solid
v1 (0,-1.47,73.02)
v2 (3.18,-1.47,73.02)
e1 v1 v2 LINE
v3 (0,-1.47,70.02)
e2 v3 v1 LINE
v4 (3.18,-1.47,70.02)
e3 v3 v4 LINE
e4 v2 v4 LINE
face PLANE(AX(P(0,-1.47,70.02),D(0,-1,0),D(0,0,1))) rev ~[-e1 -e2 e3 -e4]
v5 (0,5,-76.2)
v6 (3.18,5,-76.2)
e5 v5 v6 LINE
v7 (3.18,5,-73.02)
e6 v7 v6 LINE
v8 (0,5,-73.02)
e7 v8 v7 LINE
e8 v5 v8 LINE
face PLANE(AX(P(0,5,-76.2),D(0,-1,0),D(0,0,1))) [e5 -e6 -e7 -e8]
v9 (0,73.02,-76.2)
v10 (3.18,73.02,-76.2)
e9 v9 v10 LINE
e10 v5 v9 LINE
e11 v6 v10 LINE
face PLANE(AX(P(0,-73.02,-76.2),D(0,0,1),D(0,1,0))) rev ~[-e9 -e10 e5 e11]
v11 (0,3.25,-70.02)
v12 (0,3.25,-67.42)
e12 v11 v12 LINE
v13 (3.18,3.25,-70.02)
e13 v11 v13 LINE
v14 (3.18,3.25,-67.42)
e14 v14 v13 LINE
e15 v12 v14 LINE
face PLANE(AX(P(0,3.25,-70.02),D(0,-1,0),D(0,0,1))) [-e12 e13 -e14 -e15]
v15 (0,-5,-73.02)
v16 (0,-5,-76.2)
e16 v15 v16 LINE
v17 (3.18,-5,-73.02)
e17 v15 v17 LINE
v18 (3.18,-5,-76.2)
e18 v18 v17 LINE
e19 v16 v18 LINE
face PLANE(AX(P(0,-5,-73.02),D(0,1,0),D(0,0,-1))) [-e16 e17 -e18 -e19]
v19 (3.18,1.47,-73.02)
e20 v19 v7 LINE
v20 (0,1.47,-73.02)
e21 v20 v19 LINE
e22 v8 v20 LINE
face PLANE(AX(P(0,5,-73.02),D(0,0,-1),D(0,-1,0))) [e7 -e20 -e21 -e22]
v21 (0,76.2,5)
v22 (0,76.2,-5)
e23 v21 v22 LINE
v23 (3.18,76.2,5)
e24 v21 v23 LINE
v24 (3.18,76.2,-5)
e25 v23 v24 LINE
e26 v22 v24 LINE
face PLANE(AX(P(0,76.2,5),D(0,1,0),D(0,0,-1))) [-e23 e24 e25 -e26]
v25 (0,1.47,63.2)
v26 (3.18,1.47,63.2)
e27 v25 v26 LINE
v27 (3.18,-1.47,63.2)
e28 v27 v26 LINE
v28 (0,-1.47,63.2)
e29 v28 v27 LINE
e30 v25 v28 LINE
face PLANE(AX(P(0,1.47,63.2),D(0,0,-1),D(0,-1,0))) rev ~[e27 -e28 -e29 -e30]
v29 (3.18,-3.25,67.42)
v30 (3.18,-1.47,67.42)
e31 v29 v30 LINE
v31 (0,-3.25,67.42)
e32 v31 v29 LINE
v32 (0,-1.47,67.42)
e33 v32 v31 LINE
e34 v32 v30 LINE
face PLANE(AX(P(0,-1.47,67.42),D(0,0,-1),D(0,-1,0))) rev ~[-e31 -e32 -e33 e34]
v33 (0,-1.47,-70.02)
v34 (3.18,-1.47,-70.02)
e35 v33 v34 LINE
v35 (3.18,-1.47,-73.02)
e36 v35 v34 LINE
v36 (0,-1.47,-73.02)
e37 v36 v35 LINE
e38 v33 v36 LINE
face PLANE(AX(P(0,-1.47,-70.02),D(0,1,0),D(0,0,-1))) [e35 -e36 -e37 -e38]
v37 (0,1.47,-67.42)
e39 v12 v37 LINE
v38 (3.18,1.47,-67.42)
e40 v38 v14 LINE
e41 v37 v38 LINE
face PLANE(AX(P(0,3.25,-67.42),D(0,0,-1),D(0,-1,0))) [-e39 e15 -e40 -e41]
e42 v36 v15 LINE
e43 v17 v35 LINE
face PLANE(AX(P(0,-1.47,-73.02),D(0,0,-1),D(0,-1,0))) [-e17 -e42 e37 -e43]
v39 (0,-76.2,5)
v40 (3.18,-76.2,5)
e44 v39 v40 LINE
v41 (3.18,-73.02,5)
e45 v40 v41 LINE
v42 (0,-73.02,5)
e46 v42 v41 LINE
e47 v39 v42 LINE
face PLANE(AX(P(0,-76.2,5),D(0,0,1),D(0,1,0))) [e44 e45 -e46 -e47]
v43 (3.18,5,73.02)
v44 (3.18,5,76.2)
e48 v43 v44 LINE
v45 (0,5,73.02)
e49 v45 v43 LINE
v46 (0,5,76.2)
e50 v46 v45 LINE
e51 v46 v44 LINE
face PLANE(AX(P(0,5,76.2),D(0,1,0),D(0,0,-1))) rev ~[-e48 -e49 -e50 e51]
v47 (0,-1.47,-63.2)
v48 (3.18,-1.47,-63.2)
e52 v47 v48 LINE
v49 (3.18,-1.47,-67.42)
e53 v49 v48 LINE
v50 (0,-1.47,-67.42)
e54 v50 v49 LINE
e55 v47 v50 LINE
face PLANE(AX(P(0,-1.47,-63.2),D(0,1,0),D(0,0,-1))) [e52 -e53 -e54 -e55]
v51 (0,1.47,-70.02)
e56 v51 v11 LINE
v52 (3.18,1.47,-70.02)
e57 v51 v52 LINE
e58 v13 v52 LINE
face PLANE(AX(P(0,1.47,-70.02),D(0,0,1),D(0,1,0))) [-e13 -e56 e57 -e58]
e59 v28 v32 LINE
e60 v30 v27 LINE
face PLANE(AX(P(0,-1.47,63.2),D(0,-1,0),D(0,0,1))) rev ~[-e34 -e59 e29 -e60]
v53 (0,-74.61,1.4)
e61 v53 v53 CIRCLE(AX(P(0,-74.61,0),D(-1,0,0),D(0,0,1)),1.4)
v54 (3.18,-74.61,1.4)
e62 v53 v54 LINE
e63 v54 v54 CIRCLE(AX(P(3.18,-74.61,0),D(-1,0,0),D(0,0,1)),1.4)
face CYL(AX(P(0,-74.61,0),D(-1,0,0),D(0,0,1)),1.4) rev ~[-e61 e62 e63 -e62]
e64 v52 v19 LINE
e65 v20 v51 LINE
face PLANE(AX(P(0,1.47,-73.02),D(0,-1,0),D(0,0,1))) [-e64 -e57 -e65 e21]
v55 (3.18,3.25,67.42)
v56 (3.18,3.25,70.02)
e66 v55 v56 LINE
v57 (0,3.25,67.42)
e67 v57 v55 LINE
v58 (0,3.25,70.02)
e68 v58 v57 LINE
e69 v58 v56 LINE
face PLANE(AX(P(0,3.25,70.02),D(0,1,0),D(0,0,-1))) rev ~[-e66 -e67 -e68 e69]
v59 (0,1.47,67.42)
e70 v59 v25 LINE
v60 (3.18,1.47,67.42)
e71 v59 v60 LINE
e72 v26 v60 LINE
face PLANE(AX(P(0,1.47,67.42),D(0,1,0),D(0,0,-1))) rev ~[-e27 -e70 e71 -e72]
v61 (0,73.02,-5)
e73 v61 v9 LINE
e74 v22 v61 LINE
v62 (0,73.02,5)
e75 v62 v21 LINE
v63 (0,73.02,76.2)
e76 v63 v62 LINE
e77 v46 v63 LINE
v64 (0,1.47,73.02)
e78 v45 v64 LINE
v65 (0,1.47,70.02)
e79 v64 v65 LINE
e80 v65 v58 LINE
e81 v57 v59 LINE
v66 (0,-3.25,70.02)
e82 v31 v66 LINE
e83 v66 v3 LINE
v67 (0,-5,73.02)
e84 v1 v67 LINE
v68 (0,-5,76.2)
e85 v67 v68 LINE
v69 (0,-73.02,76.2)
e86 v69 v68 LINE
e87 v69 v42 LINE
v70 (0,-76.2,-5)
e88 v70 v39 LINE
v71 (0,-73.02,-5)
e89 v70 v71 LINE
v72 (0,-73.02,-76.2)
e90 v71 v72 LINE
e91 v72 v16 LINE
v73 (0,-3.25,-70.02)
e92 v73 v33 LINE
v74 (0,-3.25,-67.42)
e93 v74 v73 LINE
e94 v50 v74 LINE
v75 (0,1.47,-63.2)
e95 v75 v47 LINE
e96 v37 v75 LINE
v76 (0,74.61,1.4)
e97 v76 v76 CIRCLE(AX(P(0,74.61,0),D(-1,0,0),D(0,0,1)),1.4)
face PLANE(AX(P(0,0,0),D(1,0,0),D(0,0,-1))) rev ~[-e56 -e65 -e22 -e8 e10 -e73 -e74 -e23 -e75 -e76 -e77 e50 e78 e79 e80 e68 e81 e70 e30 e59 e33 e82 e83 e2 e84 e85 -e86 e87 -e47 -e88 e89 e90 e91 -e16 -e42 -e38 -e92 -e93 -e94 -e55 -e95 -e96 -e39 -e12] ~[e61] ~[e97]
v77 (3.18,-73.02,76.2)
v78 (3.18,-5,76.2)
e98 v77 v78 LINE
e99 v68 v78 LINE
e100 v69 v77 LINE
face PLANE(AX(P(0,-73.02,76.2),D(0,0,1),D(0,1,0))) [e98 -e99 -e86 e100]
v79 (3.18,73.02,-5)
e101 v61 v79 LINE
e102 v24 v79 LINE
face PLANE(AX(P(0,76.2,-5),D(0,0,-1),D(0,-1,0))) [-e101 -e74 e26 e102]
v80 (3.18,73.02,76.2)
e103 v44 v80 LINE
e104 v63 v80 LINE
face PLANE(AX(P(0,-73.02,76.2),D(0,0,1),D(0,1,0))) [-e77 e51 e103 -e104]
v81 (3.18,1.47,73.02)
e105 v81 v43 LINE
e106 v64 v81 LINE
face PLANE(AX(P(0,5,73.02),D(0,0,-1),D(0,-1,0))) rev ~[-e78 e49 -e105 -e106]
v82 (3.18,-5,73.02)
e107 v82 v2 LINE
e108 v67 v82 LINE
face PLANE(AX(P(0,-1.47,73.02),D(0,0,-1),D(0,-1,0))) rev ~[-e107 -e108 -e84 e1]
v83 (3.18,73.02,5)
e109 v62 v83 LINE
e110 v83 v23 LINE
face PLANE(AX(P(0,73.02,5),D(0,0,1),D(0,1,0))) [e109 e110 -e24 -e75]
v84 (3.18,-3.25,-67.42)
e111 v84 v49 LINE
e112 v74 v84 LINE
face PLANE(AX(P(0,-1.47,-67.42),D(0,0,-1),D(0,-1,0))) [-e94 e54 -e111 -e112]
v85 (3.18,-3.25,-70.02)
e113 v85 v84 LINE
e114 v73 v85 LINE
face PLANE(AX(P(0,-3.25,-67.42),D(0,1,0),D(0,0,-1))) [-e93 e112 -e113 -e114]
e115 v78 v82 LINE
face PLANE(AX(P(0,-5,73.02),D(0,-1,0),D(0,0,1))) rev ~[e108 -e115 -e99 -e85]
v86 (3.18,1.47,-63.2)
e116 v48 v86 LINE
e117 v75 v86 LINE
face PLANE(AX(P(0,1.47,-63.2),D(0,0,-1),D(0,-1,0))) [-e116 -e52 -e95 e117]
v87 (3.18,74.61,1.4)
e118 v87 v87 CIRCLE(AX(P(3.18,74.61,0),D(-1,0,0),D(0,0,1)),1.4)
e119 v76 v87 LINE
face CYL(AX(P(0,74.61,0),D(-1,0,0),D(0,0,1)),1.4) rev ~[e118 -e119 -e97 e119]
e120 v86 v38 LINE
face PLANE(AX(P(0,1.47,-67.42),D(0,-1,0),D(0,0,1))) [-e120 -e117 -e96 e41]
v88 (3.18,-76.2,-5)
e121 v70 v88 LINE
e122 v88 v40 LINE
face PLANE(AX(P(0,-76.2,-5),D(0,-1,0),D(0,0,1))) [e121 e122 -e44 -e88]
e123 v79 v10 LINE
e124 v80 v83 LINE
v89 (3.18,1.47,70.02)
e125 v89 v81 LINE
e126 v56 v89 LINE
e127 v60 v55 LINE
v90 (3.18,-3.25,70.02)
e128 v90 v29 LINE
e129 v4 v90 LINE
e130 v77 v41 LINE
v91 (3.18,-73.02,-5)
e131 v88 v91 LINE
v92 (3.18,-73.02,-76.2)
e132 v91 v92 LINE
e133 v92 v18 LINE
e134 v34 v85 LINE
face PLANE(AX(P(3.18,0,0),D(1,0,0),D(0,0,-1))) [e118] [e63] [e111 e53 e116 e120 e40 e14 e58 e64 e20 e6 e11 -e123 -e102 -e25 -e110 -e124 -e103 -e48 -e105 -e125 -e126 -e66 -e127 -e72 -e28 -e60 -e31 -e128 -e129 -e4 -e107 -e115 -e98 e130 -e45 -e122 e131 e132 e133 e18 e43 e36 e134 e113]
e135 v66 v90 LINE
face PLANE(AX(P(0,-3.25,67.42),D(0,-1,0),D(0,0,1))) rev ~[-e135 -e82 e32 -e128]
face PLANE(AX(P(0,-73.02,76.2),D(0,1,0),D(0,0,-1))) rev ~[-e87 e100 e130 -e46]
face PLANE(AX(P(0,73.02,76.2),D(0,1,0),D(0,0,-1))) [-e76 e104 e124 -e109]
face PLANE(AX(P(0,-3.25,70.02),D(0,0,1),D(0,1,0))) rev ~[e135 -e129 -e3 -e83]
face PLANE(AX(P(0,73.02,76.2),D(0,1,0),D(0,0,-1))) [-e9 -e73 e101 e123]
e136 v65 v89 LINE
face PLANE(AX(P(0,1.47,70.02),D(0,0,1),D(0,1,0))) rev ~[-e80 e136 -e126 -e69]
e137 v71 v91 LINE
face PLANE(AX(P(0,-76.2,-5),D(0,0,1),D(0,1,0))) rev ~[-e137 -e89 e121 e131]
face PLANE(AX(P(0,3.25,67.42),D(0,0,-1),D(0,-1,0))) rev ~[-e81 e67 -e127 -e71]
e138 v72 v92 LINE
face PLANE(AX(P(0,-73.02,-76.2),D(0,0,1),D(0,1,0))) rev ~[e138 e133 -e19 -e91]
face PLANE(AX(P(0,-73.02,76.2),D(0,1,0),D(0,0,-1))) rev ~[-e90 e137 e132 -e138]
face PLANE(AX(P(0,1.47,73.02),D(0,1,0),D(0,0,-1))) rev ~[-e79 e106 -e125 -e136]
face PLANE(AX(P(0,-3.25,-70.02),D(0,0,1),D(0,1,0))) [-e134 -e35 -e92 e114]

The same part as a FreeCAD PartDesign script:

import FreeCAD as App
import Part
import Sketcher
Q = App.Units.Quantity


def add_polygon(sketch, points):
    """Adds a closed chain of lines whose ends are joined by coincident constraints."""
    first, n = sketch.GeometryCount, len(points)
    for a, b in zip(points, points[1:] + points[:1]):
        sketch.addGeometry(Part.LineSegment(App.Vector(*a, 0), App.Vector(*b, 0)), False)
    for i in range(n):
        sketch.addConstraint(Sketcher.Constraint("Coincident", first + i, 2, first + (i + 1) % n, 1))

doc = App.newDocument("Part")
params = doc.addObject("Spreadsheet::Sheet", "Params")
for row, (alias, value) in enumerate([
    ("sketch1_height", "152.4 mm"),
    ("sketch1_width", "146.04 mm"),
    ("pad1_length", "3.18 mm"),
    ("sketch2_diameter", "2.8 mm"),
    ("sketch2_height", "10 mm"),
    ("sketch2_width", "3.18 mm"),
    ("pad2_length", "3.18 mm"),
    ("sketch3_width", "10 mm"),
    ("sketch3_height", "3 mm"),
    ("sketch3_height2", "2.6 mm"),
    ("sketch3_width2", "3.53 mm"),
    ("sketch3_width3", "1.78 mm"),
    ("sketch4_width", "10 mm"),
    ("sketch4_height", "3 mm"),
    ("sketch4_height2", "2.6 mm"),
    ("sketch4_width2", "1.78 mm"),
    ("sketch4_width3", "2.94 mm"),
], start=1):
    params.set(f"A{row}", alias)
    params.set(f"B{row}", "=" + value)
    params.setAlias(f"B{row}", alias)

body = doc.addObject("PartDesign::Body", "Body")

# Sketch on YZ plane
sketch1 = body.newObject("Sketcher::SketchObject", "Sketch")
sketch1.AttachmentSupport = (doc.getObject("YZ_Plane"), [""])
sketch1.MapMode = "FlatFace"
add_polygon(sketch1, [(73, 76), (-73, 76), (-73, -76), (73, -76)])  # lines 0-3
sketch1.addConstraint([
    Sketcher.Constraint("Horizontal", 0),
    Sketcher.Constraint("Vertical", 1),
    Sketcher.Constraint("Horizontal", 2),
    Sketcher.Constraint("Vertical", 3),
    Sketcher.Constraint("Symmetric", 0, 2, 2, 2, -1, 1),
    Sketcher.Constraint("DistanceY", 1, 2, 1, 1, Q("152.4 mm")),
    Sketcher.Constraint("DistanceX", 0, 2, 0, 1, Q("146.04 mm")),
])
sketch1.setExpression("Constraints[9]", "Params.sketch1_height")
sketch1.setExpression("Constraints[10]", "Params.sketch1_width")
pad1 = body.newObject("PartDesign::Pad", "Pad")
pad1.Profile = sketch1
pad1.setExpression("Length", "Params.pad1_length")

# Sketch on YZ plane
sketch2 = body.newObject("Sketcher::SketchObject", "Sketch001")
sketch2.AttachmentSupport = (doc.getObject("YZ_Plane"), [""])
sketch2.MapMode = "FlatFace"
add_polygon(sketch2, [(73, 5), (76.2, 5), (76.2, -5), (73, -5)])  # lines 0-3
sketch2.addGeometry(Part.Circle(App.Vector(74.6, 0, 0), App.Vector(0, 0, 1), 1.4), False)  # 4
add_polygon(sketch2, [(-73, -5), (-76.2, -5), (-76.2, 5), (-73, 5)])  # lines 5-8
sketch2.addGeometry(Part.Circle(App.Vector(-74.6, 0, 0), App.Vector(0, 0, 1), 1.4), False)  # 9
sketch2.addConstraint([
    Sketcher.Constraint("Horizontal", 0),
    Sketcher.Constraint("Vertical", 1),
    Sketcher.Constraint("Horizontal", 2),
    Sketcher.Constraint("Vertical", 3),
    Sketcher.Constraint("Horizontal", 5),
    Sketcher.Constraint("Vertical", 6),
    Sketcher.Constraint("Horizontal", 7),
    Sketcher.Constraint("Vertical", 8),
    Sketcher.Constraint("Equal", 4, 9),
    Sketcher.Constraint("Symmetric", 4, 3, 9, 3, -1, 1),
    Sketcher.Constraint("Symmetric", 0, 2, 5, 2, -1, 1),
    Sketcher.Constraint("Symmetric", 2, 2, 7, 2, -1, 1),
    Sketcher.Constraint("PointOnObject", 4, 3, -1),
    Sketcher.Constraint("Horizontal", 2, 2, 5, 2),
    Sketcher.Constraint("Diameter", 4, Q("2.8 mm")),
    Sketcher.Constraint("DistanceY", 1, 2, 1, 1, Q("10 mm")),
    Sketcher.Constraint("DistanceX", 0, 1, 0, 2, Q("3.18 mm")),
    Sketcher.Constraint("DistanceX", -1, 1, 0, 2, Q("76.2 mm")),
    Sketcher.Constraint("DistanceX", -1, 1, 4, 3, Q("74.61 mm")),
])
sketch2.setExpression("Constraints[22]", "Params.sketch2_diameter")
sketch2.setExpression("Constraints[23]", "Params.sketch2_height")
sketch2.setExpression("Constraints[24]", "Params.sketch2_width")
pad2 = body.newObject("PartDesign::Pad", "Pad001")
pad2.Profile = sketch2
pad2.setExpression("Length", "Params.pad2_length")

# Sketch on YZ plane
sketch3 = body.newObject("Sketcher::SketchObject", "Sketch002")
sketch3.AttachmentSupport = (doc.getObject("YZ_Plane"), [""])
sketch3.MapMode = "FlatFace"
add_polygon(sketch3, [(5, 76.2), (-5, 76.2), (-5, 73), (-1.5, 73), (-1.5, 70), (-3.2, 70), (-3.2, 67.4), (-1.5, 67.4), (-1.5, 63.2), (1.5, 63.2), (1.5, 67.4), (3.2, 67.4), (3.2, 70), (1.5, 70), (1.5, 73), (5, 73)])  # lines 0-15
sketch3.addConstraint([
    Sketcher.Constraint("Horizontal", 0),
    Sketcher.Constraint("Vertical", 1),
    Sketcher.Constraint("Horizontal", 2),
    Sketcher.Constraint("Vertical", 3),
    Sketcher.Constraint("Horizontal", 4),
    Sketcher.Constraint("Vertical", 5),
    Sketcher.Constraint("Horizontal", 6),
    Sketcher.Constraint("Vertical", 7),
    Sketcher.Constraint("Horizontal", 8),
    Sketcher.Constraint("Vertical", 9),
    Sketcher.Constraint("Horizontal", 10),
    Sketcher.Constraint("Vertical", 11),
    Sketcher.Constraint("Horizontal", 12),
    Sketcher.Constraint("Vertical", 13),
    Sketcher.Constraint("Horizontal", 14),
    Sketcher.Constraint("Vertical", 15),
    Sketcher.Constraint("Symmetric", 6, 2, 9, 2, -2),
    Sketcher.Constraint("Symmetric", 4, 2, 11, 2, -2),
    Sketcher.Constraint("Symmetric", 2, 2, 13, 2, -2),
    Sketcher.Constraint("Vertical", 3, 2, 6, 2),
    Sketcher.Constraint("Equal", 2, 14),
    Sketcher.Constraint("DistanceX", 0, 2, 0, 1, Q("10 mm")),
    Sketcher.Constraint("DistanceY", 3, 2, 3, 1, Q("3 mm")),
    Sketcher.Constraint("DistanceY", 5, 2, 5, 1, Q("2.6 mm")),
    Sketcher.Constraint("DistanceX", 2, 1, 2, 2, Q("3.53 mm")),
    Sketcher.Constraint("DistanceX", 4, 2, 4, 1, Q("1.78 mm")),
    Sketcher.Constraint("DistanceY", 1, 2, 1, 1, Q("3.18 mm")),
    Sketcher.Constraint("DistanceY", 7, 2, 7, 1, Q("4.22 mm")),
    Sketcher.Constraint("DistanceY", -1, 1, 0, 2, Q("76.2 mm")),
])
sketch3.setExpression("Constraints[37]", "Params.sketch3_width")
sketch3.setExpression("Constraints[38]", "Params.sketch3_height")
sketch3.setExpression("Constraints[39]", "Params.sketch3_height2")
sketch3.setExpression("Constraints[40]", "Params.sketch3_width2")
sketch3.setExpression("Constraints[41]", "Params.sketch3_width3")
pocket1 = body.newObject("PartDesign::Pocket", "Pocket")
pocket1.Profile = sketch3
pocket1.Type = "ThroughAll"
pocket1.Reversed = True

# Sketch on YZ plane
sketch4 = body.newObject("Sketcher::SketchObject", "Sketch003")
sketch4.AttachmentSupport = (doc.getObject("YZ_Plane"), [""])
sketch4.MapMode = "FlatFace"
add_polygon(sketch4, [(-1.5, -73), (-1.5, -70), (-3.2, -70), (-3.2, -67.4), (-1.5, -67.4), (-1.5, -63.2), (1.5, -63.2), (1.5, -67.4), (3.2, -67.4), (3.2, -70), (1.5, -70), (1.5, -73), (5, -73), (5, -76.2), (-5, -76.2), (-5, -73)])  # lines 0-15
sketch4.addConstraint([
    Sketcher.Constraint("Vertical", 0),
    Sketcher.Constraint("Horizontal", 1),
    Sketcher.Constraint("Vertical", 2),
    Sketcher.Constraint("Horizontal", 3),
    Sketcher.Constraint("Vertical", 4),
    Sketcher.Constraint("Horizontal", 5),
    Sketcher.Constraint("Vertical", 6),
    Sketcher.Constraint("Horizontal", 7),
    Sketcher.Constraint("Vertical", 8),
    Sketcher.Constraint("Horizontal", 9),
    Sketcher.Constraint("Vertical", 10),
    Sketcher.Constraint("Horizontal", 11),
    Sketcher.Constraint("Vertical", 12),
    Sketcher.Constraint("Horizontal", 13),
    Sketcher.Constraint("Vertical", 14),
    Sketcher.Constraint("Horizontal", 15),
    Sketcher.Constraint("Symmetric", 3, 2, 6, 2, -2),
    Sketcher.Constraint("Symmetric", 1, 2, 8, 2, -2),
    Sketcher.Constraint("Symmetric", 11, 2, 14, 2, -2),
    Sketcher.Constraint("Vertical", 0, 2, 3, 2),
    Sketcher.Constraint("Vertical", 6, 2, 9, 2),
    Sketcher.Constraint("DistanceX", 13, 2, 13, 1, Q("10 mm")),
    Sketcher.Constraint("DistanceY", 0, 1, 0, 2, Q("3 mm")),
    Sketcher.Constraint("DistanceY", 2, 1, 2, 2, Q("2.6 mm")),
    Sketcher.Constraint("DistanceX", 1, 2, 1, 1, Q("1.78 mm")),
    Sketcher.Constraint("DistanceX", 5, 1, 5, 2, Q("2.94 mm")),
    Sketcher.Constraint("DistanceY", 4, 1, 4, 2, Q("4.22 mm")),
    Sketcher.Constraint("DistanceY", 12, 2, 12, 1, Q("3.18 mm")),
    Sketcher.Constraint("DistanceY", 4, 2, -1, 1, Q("63.2 mm")),
])
sketch4.setExpression("Constraints[37]", "Params.sketch4_width")
sketch4.setExpression("Constraints[38]", "Params.sketch4_height")
sketch4.setExpression("Constraints[39]", "Params.sketch4_height2")
sketch4.setExpression("Constraints[40]", "Params.sketch4_width2")
sketch4.setExpression("Constraints[41]", "Params.sketch4_width3")
pocket2 = body.newObject("PartDesign::Pocket", "Pocket001")
pocket2.Profile = sketch4
pocket2.Type = "ThroughAll"
pocket2.Reversed = True

doc.recompute()
